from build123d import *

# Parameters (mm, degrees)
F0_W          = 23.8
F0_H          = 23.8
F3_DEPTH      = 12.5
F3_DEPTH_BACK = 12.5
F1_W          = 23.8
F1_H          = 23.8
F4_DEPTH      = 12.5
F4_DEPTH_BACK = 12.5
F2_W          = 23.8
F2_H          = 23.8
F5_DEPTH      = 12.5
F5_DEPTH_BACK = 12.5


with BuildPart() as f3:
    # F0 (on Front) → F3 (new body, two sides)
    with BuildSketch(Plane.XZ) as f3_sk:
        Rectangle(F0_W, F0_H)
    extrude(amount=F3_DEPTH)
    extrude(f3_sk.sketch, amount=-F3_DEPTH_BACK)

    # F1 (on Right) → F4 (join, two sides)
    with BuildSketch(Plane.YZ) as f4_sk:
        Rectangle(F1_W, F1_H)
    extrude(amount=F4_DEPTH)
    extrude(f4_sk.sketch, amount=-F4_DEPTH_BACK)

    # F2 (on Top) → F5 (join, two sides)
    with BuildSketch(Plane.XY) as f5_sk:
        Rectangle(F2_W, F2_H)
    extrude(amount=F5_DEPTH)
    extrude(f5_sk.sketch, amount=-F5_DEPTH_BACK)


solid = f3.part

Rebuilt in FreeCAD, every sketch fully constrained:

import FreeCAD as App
import Part
import Sketcher

V = App.Vector
Q = App.Units.Quantity


def add_polygon(sketch, points):
    """Adds a closed chain of lines whose ends are joined by coincident constraints."""
    first, n = sketch.GeometryCount, len(points)
    for a, b in zip(points, points[1:] + points[:1]):
        sketch.addGeometry(Part.LineSegment(App.Vector(*a, 0), App.Vector(*b, 0)), False)
    for i in range(n):
        sketch.addConstraint(Sketcher.Constraint("Coincident", first + i, 2, first + (i + 1) % n, 1))

doc = App.newDocument("Part")
body = doc.addObject("PartDesign::Body", "Body")

sketch1 = body.newObject("Sketcher::SketchObject", "Sketch")
sketch1.AttachmentSupport = (doc.getObject("XZ_Plane"), [""])
sketch1.MapMode = "FlatFace"
add_polygon(sketch1, [(-12, 12), (-12, -12), (12, -12), (12, 12)])
sketch1.addConstraint([
    Sketcher.Constraint("Vertical", 0),
    Sketcher.Constraint("Horizontal", 1),
    Sketcher.Constraint("Vertical", 2),
    Sketcher.Constraint("Horizontal", 3),
    Sketcher.Constraint("Symmetric", 0, 2, 2, 2, -1, 1),
    Sketcher.Constraint("Equal", 3, 0),
    Sketcher.Constraint("DistanceX", 1, 1, 1, 2, Q("23.8 mm")),
])
pad1 = body.newObject("PartDesign::Pad", "Pad")
pad1.Profile = sketch1
pad1.Type = "TwoLengths"
pad1.Length = 12.5
pad1.Length2 = 12.5

sketch2 = body.newObject("Sketcher::SketchObject", "Sketch001")
sketch2.AttachmentSupport = (doc.getObject("YZ_Plane"), [""])
sketch2.MapMode = "FlatFace"
add_polygon(sketch2, [(-12, 12), (-12, -12), (12, -12), (12, 12)])
sketch2.addConstraint([
    Sketcher.Constraint("Vertical", 0),
    Sketcher.Constraint("Horizontal", 1),
    Sketcher.Constraint("Vertical", 2),
    Sketcher.Constraint("Horizontal", 3),
    Sketcher.Constraint("Symmetric", 0, 2, 2, 2, -1, 1),
    Sketcher.Constraint("Equal", 3, 0),
    Sketcher.Constraint("DistanceX", 1, 1, 1, 2, Q("23.8 mm")),
])
pad2 = body.newObject("PartDesign::Pad", "Pad001")
pad2.Profile = sketch2
pad2.Type = "TwoLengths"
pad2.Length = 12.5
pad2.Length2 = 12.5

sketch3 = body.newObject("Sketcher::SketchObject", "Sketch002")
sketch3.AttachmentSupport = (doc.getObject("XY_Plane"), [""])
sketch3.MapMode = "FlatFace"
add_polygon(sketch3, [(-12, 12), (-12, -12), (12, -12), (12, 12)])
sketch3.addConstraint([
    Sketcher.Constraint("Vertical", 0),
    Sketcher.Constraint("Horizontal", 1),
    Sketcher.Constraint("Vertical", 2),
    Sketcher.Constraint("Horizontal", 3),
    Sketcher.Constraint("Symmetric", 0, 2, 2, 2, -1, 1),
    Sketcher.Constraint("Equal", 3, 0),
    Sketcher.Constraint("DistanceX", 1, 1, 1, 2, Q("23.8 mm")),
])
pad3 = body.newObject("PartDesign::Pad", "Pad002")
pad3.Profile = sketch3
pad3.Type = "TwoLengths"
pad3.Length = 12.5
pad3.Length2 = 12.5

doc.recompute()
